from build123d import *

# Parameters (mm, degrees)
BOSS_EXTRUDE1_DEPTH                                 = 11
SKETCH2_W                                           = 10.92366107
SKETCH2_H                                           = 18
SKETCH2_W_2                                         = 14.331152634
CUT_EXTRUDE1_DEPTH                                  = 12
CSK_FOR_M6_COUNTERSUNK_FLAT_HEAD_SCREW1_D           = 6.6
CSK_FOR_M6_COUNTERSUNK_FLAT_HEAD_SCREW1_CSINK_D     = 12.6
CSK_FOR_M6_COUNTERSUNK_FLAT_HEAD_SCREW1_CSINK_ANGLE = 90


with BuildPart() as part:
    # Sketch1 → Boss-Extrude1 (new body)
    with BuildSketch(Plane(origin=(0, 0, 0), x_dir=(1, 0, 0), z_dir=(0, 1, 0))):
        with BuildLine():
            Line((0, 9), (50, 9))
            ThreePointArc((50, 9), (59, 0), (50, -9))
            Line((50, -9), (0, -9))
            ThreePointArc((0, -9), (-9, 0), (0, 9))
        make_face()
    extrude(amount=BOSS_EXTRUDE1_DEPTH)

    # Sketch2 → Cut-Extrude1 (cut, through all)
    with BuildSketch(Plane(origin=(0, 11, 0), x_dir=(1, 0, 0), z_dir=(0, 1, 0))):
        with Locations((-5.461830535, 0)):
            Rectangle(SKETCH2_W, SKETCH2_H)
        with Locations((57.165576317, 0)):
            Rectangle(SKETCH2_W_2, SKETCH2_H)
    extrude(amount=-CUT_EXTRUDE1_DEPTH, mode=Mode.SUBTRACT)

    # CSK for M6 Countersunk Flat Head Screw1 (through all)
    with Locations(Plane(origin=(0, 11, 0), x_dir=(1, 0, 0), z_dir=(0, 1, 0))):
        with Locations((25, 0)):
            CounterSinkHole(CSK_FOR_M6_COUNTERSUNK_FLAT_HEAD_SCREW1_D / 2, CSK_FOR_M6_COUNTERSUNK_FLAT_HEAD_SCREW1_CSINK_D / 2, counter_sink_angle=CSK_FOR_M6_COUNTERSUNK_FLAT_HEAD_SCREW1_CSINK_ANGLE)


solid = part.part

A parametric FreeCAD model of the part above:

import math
import FreeCAD as App
import Part
import Sketcher

V = App.Vector


def add_polygon(sketch, points):
    """Adds a closed chain of lines whose ends are joined by coincident constraints."""
    first, n = sketch.GeometryCount, len(points)
    for a, b in zip(points, points[1:] + points[:1]):
        sketch.addGeometry(Part.LineSegment(App.Vector(*a, 0), App.Vector(*b, 0)), False)
    for i in range(n):
        sketch.addConstraint(Sketcher.Constraint("Coincident", first + i, 2, first + (i + 1) % n, 1))

doc = App.newDocument("Part")
body = doc.addObject("PartDesign::Body", "Body")

sketch1 = body.newObject("Sketcher::SketchObject", "Sketch")
sketch1.AttachmentSupport = (doc.getObject("XZ_Plane"), [""])
sketch1.MapMode = "FlatFace"
sketch1.addGeometry([
    Part.LineSegment(V(50, -9, 0), V(0, -9, 0)),
    Part.ArcOfCircle(Part.Circle(V(0, 0, 0), V(0, 0, 1), 9), math.radians(90), math.radians(270)),
    Part.LineSegment(V(0, 9, 0), V(50, 9, 0)),
    Part.ArcOfCircle(Part.Circle(V(50, 0, 0), V(0, 0, 1), 9), math.radians(-90), math.radians(90)),
], False)
sketch1.addConstraint([
    Sketcher.Constraint("Tangent", 0, 2, 1, 2),
    Sketcher.Constraint("Tangent", 1, 1, 2, 1),
    Sketcher.Constraint("Tangent", 2, 2, 3, 2),
    Sketcher.Constraint("Tangent", 3, 1, 0, 1),
    Sketcher.Constraint("Horizontal", 0),
    Sketcher.Constraint("Horizontal", 2),
    Sketcher.Constraint("Coincident", 1, 3, -1, 1),
    Sketcher.Constraint("Radius", 1, 9.0),
    Sketcher.Constraint("DistanceX", 0, 2, 0, 1, 50.0),
])
pad1 = body.newObject("PartDesign::Pad", "Pad")
pad1.Profile = sketch1
pad1.Length = 11
pad1.Reversed = True

sketch2 = body.newObject("Sketcher::SketchObject", "Sketch001")
sketch2.AttachmentSupport = (doc.getObject("XZ_Plane"), [""])
sketch2.MapMode = "FlatFace"
sketch2.AttachmentOffset = App.Placement(V(0, 0, -11), App.Rotation())
add_polygon(sketch2, [(-10.923661, -9), (-10.923661, 9), (0, 9), (0, -9)])
add_polygon(sketch2, [(50, -9), (50, 9), (64.331153, 9), (64.331153, -9)])
sketch2.addConstraint([
    Sketcher.Constraint("Vertical", 0),
    Sketcher.Constraint("Horizontal", 1),
    Sketcher.Constraint("Vertical", 2),
    Sketcher.Constraint("Horizontal", 3),
    Sketcher.Constraint("Vertical", 4),
    Sketcher.Constraint("Horizontal", 5),
    Sketcher.Constraint("Vertical", 6),
    Sketcher.Constraint("Horizontal", 7),
    Sketcher.Constraint("Symmetric", 1, 2, 2, 2, -1, 1),
    Sketcher.Constraint("Horizontal", 1, 2, 4, 2),
    Sketcher.Constraint("Horizontal", 3, 2, 6, 2),
    Sketcher.Constraint("DistanceY", 0, 1, 0, 2, 18.0),
    Sketcher.Constraint("DistanceX", -1, 1, 4, 2, 50.0),
    Sketcher.Constraint("DistanceX", 1, 1, 1, 2, 10.923661),
    Sketcher.Constraint("DistanceX", 5, 1, 5, 2, 14.331153),
])
pocket1 = body.newObject("PartDesign::Pocket", "Pocket")
pocket1.Profile = sketch2
pocket1.Type = "ThroughAll"
pocket1.Reversed = True

sketch3 = body.newObject("Sketcher::SketchObject", "Sketch002")
sketch3.AttachmentSupport = (doc.getObject("XZ_Plane"), [""])
sketch3.MapMode = "FlatFace"
sketch3.AttachmentOffset = App.Placement(V(0, 0, -11), App.Rotation())
sketch3.addGeometry(Part.Circle(V(25, 0, 0), V(0, 0, 1), 3.3), False)
sketch3.addConstraint([
    Sketcher.Constraint("PointOnObject", 0, 3, -1),
    Sketcher.Constraint("Diameter", 0, 6.6),
    Sketcher.Constraint("DistanceX", -1, 1, 0, 3, 25.0),
])
doc.recompute()
hole = body.newObject("PartDesign::Hole", "Hole")
hole.Profile = sketch3
hole.ThreadType = "None"
hole.Diameter = 6.6
hole.DepthType = "ThroughAll"
hole.HoleCutType = "Countersink"
hole.HoleCutDiameter = 12.6
hole.HoleCutCountersinkAngle = 90
hole.Reversed = True

doc.recompute()
